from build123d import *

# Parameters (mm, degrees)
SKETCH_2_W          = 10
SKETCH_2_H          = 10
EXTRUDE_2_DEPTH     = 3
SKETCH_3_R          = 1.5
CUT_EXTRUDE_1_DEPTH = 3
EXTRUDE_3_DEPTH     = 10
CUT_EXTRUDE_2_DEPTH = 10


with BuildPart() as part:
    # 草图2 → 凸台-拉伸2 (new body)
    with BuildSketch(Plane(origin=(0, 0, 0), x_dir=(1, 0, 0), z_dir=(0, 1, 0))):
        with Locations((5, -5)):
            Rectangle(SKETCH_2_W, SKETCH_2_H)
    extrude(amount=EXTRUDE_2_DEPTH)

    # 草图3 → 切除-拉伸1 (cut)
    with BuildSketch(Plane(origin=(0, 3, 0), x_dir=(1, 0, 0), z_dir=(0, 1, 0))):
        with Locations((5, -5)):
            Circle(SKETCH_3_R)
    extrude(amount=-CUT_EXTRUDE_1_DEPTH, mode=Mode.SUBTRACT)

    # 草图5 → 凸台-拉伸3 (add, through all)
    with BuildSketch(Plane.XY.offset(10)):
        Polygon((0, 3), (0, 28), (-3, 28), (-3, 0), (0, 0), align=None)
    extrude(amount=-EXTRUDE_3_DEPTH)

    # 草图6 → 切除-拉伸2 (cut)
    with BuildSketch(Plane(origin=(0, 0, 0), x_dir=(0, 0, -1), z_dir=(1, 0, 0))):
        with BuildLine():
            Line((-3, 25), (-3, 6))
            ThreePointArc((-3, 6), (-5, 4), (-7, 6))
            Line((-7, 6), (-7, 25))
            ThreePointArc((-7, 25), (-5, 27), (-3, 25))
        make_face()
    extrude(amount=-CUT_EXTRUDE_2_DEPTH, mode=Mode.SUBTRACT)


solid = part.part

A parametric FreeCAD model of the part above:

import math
import FreeCAD as App
import Part
import Sketcher


def add_polygon(sketch, points):
    """Adds a closed chain of lines whose ends are joined by coincident constraints."""
    first, n = sketch.GeometryCount, len(points)
    for a, b in zip(points, points[1:] + points[:1]):
        sketch.addGeometry(Part.LineSegment(App.Vector(*a, 0), App.Vector(*b, 0)), False)
    for i in range(n):
        sketch.addConstraint(Sketcher.Constraint("Coincident", first + i, 2, first + (i + 1) % n, 1))

doc = App.newDocument("Part")
body = doc.addObject("PartDesign::Body", "Body")

sketch1 = body.newObject("Sketcher::SketchObject", "Sketch")
sketch1.AttachmentSupport = (doc.getObject("XZ_Plane"), [""])
sketch1.MapMode = "FlatFace"
add_polygon(sketch1, [(0, 0), (0, 10), (10, 10), (10, 0)])
sketch1.addConstraint([
    Sketcher.Constraint("Vertical", 0),
    Sketcher.Constraint("Horizontal", 1),
    Sketcher.Constraint("Vertical", 2),
    Sketcher.Constraint("Horizontal", 3),
    Sketcher.Constraint("Coincident", 3, 2, -1, 1),
    Sketcher.Constraint("Equal", 3, 0),
    Sketcher.Constraint("DistanceX", 1, 1, 1, 2, 10.0),
])
pad1 = body.newObject("PartDesign::Pad", "Pad")
pad1.Profile = sketch1
pad1.Length = 3
pad1.Reversed = True

sketch2 = body.newObject("Sketcher::SketchObject", "Sketch001")
sketch2.AttachmentSupport = (doc.getObject("XZ_Plane"), [""])
sketch2.MapMode = "FlatFace"
sketch2.AttachmentOffset = App.Placement(App.Vector(0, 0, -3), App.Rotation())
sketch2.addGeometry(Part.Circle(App.Vector(5, 5, 0), App.Vector(0, 0, 1), 1.5), False)
sketch2.addConstraint([
    Sketcher.Constraint("Diameter", 0, 3.0),
    Sketcher.Constraint("DistanceX", -1, 1, 0, 3, 5.0),
    Sketcher.Constraint("DistanceY", -1, 1, 0, 3, 5.0),
])
pocket1 = body.newObject("PartDesign::Pocket", "Pocket")
pocket1.Profile = sketch2
pocket1.Length = 3
pocket1.Reversed = True

sketch3 = body.newObject("Sketcher::SketchObject", "Sketch002")
sketch3.AttachmentSupport = (doc.getObject("XY_Plane"), [""])
sketch3.MapMode = "FlatFace"
sketch3.AttachmentOffset = App.Placement(App.Vector(0, 0, 10), App.Rotation())
add_polygon(sketch3, [(0, 28), (-3, 28), (-3, 0), (0, 0)])
sketch3.addConstraint([
    Sketcher.Constraint("Horizontal", 0),
    Sketcher.Constraint("Vertical", 1),
    Sketcher.Constraint("Horizontal", 2),
    Sketcher.Constraint("Vertical", 3),
    Sketcher.Constraint("Coincident", 2, 2, -1, 1),
    Sketcher.Constraint("DistanceX", 0, 2, 0, 1, 3.0),
    Sketcher.Constraint("DistanceY", 1, 2, 1, 1, 28.0),
])
pad2 = body.newObject("PartDesign::Pad", "Pad001")
pad2.Profile = sketch3
pad2.Length = 10
pad2.Reversed = True

sketch4 = body.newObject("Sketcher::SketchObject", "Sketch003")
sketch4.AttachmentSupport = (doc.getObject("YZ_Plane"), [""])
sketch4.MapMode = "FlatFace"
sketch4.addGeometry([
    Part.LineSegment(App.Vector(6, 3, 0), App.Vector(25, 3, 0)),
    Part.ArcOfCircle(Part.Circle(App.Vector(25, 5, 0), App.Vector(0, 0, 1), 2), math.radians(-90), math.radians(90)),
    Part.LineSegment(App.Vector(25, 7, 0), App.Vector(6, 7, 0)),
    Part.ArcOfCircle(Part.Circle(App.Vector(6, 5, 0), App.Vector(0, 0, 1), 2), math.radians(90), math.radians(270)),
], False)
sketch4.addConstraint([
    Sketcher.Constraint("Tangent", 0, 2, 1, 1),
    Sketcher.Constraint("Tangent", 1, 2, 2, 1),
    Sketcher.Constraint("Tangent", 2, 2, 3, 1),
    Sketcher.Constraint("Tangent", 3, 2, 0, 1),
    Sketcher.Constraint("Horizontal", 0),
    Sketcher.Constraint("Horizontal", 2),
    Sketcher.Constraint("Radius", 1, 2.0),
    Sketcher.Constraint("DistanceX", 0, 1, 0, 2, 19.0),
    Sketcher.Constraint("DistanceX", -1, 1, 1, 3, 25.0),
    Sketcher.Constraint("DistanceY", -1, 1, 1, 3, 5.0),
])
pocket2 = body.newObject("PartDesign::Pocket", "Pocket001")
pocket2.Profile = sketch4
pocket2.Length = 10

doc.recompute()
